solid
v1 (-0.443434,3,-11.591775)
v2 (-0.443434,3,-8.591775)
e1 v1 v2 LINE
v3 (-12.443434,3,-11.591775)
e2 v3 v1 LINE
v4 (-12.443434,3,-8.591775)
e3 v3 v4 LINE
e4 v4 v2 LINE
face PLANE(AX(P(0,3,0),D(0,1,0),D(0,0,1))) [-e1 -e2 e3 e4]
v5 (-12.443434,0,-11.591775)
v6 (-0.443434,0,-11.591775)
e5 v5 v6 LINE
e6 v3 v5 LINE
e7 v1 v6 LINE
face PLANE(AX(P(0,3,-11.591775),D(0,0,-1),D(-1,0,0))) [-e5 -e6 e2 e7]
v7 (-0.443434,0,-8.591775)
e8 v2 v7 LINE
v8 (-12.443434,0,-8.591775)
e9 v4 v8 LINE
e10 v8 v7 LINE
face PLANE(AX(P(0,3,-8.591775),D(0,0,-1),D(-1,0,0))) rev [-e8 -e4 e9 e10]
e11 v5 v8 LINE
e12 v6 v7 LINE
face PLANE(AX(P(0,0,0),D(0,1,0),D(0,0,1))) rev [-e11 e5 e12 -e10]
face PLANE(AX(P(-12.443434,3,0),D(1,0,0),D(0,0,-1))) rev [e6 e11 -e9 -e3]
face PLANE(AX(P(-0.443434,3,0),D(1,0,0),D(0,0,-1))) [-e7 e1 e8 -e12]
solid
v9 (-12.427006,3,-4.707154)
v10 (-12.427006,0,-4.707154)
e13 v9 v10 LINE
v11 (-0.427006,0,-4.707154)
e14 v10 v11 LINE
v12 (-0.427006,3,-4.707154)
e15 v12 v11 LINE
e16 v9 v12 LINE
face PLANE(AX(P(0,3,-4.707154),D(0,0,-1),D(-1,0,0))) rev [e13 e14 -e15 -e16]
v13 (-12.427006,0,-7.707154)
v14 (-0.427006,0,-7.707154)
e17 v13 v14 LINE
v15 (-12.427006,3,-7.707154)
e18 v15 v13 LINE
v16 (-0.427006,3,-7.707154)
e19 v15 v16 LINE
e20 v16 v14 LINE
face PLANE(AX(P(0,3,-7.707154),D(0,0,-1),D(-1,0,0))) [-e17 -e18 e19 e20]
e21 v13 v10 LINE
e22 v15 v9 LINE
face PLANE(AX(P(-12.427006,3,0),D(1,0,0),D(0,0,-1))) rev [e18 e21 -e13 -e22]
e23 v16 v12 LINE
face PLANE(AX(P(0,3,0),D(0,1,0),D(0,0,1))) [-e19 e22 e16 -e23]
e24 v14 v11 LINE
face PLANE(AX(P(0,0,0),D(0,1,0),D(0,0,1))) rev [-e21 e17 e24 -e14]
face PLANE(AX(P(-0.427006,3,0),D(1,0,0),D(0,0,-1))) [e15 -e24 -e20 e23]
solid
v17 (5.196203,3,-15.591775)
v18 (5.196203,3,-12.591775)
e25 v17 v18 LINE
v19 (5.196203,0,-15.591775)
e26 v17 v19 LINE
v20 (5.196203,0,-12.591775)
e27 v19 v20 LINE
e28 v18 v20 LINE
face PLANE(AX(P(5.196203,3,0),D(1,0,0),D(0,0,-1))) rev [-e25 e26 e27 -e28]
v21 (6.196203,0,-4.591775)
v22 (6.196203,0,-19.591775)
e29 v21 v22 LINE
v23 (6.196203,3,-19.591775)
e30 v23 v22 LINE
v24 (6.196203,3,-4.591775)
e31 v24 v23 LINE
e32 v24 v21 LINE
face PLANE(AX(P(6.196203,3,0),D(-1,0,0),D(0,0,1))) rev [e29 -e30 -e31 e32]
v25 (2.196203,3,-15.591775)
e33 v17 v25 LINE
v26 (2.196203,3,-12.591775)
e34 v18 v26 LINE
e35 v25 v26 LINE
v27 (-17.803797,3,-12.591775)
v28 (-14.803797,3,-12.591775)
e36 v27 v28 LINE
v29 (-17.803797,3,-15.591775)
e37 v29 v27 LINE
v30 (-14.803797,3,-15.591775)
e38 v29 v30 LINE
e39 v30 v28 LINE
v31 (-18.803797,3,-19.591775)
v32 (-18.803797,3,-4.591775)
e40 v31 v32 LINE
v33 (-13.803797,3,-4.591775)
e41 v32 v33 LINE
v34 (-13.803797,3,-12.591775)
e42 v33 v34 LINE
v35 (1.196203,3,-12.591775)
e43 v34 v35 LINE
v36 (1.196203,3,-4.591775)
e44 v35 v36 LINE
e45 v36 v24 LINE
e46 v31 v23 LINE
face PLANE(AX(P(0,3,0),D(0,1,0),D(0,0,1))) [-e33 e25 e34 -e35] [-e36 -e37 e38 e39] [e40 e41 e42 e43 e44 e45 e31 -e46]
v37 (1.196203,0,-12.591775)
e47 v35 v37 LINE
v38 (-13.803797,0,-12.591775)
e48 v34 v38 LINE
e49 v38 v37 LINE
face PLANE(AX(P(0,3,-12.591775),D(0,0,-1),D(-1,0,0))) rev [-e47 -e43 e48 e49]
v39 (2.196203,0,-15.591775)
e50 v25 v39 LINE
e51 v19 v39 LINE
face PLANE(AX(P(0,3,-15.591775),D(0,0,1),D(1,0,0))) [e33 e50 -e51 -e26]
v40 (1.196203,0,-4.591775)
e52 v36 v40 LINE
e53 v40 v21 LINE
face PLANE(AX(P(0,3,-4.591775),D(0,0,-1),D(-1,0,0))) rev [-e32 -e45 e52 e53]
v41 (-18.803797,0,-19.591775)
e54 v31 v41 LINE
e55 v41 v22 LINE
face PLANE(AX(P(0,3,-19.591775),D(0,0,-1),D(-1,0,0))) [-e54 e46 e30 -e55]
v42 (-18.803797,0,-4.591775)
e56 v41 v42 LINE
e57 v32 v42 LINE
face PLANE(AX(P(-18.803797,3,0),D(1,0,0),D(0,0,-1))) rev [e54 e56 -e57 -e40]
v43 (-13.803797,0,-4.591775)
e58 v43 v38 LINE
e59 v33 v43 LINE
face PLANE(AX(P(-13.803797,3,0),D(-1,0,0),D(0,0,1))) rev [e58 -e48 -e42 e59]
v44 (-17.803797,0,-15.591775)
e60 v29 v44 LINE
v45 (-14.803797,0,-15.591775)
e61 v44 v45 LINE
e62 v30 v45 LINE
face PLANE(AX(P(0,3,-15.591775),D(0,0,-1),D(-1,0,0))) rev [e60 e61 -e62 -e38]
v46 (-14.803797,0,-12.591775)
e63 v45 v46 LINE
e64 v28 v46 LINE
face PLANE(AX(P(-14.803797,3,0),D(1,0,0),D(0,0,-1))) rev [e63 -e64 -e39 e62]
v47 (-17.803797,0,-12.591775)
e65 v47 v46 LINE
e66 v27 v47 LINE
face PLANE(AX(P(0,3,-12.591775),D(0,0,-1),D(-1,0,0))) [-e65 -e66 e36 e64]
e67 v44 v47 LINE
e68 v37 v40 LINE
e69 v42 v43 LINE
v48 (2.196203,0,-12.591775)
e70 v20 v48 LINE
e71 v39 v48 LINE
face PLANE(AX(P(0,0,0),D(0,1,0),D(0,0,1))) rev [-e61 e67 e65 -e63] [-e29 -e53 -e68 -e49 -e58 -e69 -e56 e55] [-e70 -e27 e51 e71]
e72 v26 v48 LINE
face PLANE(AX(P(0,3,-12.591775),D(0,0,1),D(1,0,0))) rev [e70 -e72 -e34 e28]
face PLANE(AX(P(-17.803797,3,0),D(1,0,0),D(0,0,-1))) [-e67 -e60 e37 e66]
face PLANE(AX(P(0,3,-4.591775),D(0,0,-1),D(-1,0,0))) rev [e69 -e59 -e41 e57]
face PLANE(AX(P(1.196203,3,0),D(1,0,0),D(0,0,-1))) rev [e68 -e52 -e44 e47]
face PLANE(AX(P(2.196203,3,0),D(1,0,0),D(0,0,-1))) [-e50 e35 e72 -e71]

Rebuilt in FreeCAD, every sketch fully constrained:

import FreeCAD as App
import Part
import Sketcher
Q = App.Units.Quantity

doc = App.newDocument("Part")
body = doc.addObject("PartDesign::Body", "Body")

sketch1 = body.newObject("Sketcher::SketchObject", "Sketch")
sketch1.AttachmentSupport = (doc.getObject("XZ_Plane"), [""])
sketch1.MapMode = "FlatFace"
sketch1.addGeometry([
    Part.LineSegment(App.Vector(-18.8, -19.6, 0), App.Vector(-18.8, -4.6, 0)),
    Part.LineSegment(App.Vector(-18.8, -4.6, 0), App.Vector(-13.8, -4.6, 0)),
    Part.LineSegment(App.Vector(-13.8, -4.6, 0), App.Vector(-13.8, -12.6, 0)),
    Part.LineSegment(App.Vector(-13.8, -12.6, 0), App.Vector(1.2, -12.6, 0)),
    Part.LineSegment(App.Vector(1.2, -12.6, 0), App.Vector(1.2, -4.6, 0)),
    Part.LineSegment(App.Vector(1.2, -4.6, 0), App.Vector(6.2, -4.6, 0)),
    Part.LineSegment(App.Vector(6.2, -4.6, 0), App.Vector(6.2, -19.6, 0)),
    Part.LineSegment(App.Vector(6.2, -19.6, 0), App.Vector(-18.8, -19.6, 0)),
    Part.LineSegment(App.Vector(-14.8, -12.6, 0), App.Vector(-17.8, -12.6, 0)),
    Part.LineSegment(App.Vector(-17.8, -12.6, 0), App.Vector(-17.8, -15.6, 0)),
    Part.LineSegment(App.Vector(-17.8, -15.6, 0), App.Vector(-14.8, -15.6, 0)),
    Part.LineSegment(App.Vector(-14.8, -15.6, 0), App.Vector(-14.8, -12.6, 0)),
    Part.LineSegment(App.Vector(5.2, -12.6, 0), App.Vector(2.2, -12.6, 0)),
    Part.LineSegment(App.Vector(2.2, -12.6, 0), App.Vector(2.2, -15.6, 0)),
    Part.LineSegment(App.Vector(2.2, -15.6, 0), App.Vector(5.2, -15.6, 0)),
    Part.LineSegment(App.Vector(5.2, -15.6, 0), App.Vector(5.2, -12.6, 0)),
], False)
sketch1.addConstraint([
    Sketcher.Constraint("Coincident", 0, 2, 1, 1),
    Sketcher.Constraint("Coincident", 1, 2, 2, 1),
    Sketcher.Constraint("Coincident", 2, 2, 3, 1),
    Sketcher.Constraint("Coincident", 3, 2, 4, 1),
    Sketcher.Constraint("Coincident", 4, 2, 5, 1),
    Sketcher.Constraint("Coincident", 5, 2, 6, 1),
    Sketcher.Constraint("Coincident", 6, 2, 7, 1),
    Sketcher.Constraint("Coincident", 7, 2, 0, 1),
    Sketcher.Constraint("Coincident", 8, 2, 9, 1),
    Sketcher.Constraint("Coincident", 9, 2, 10, 1),
    Sketcher.Constraint("Coincident", 10, 2, 11, 1),
    Sketcher.Constraint("Coincident", 11, 2, 8, 1),
    Sketcher.Constraint("Coincident", 12, 2, 13, 1),
    Sketcher.Constraint("Coincident", 13, 2, 14, 1),
    Sketcher.Constraint("Coincident", 14, 2, 15, 1),
    Sketcher.Constraint("Coincident", 15, 2, 12, 1),
    Sketcher.Constraint("Vertical", 0),
    Sketcher.Constraint("Horizontal", 1),
    Sketcher.Constraint("Vertical", 2),
    Sketcher.Constraint("Horizontal", 3),
    Sketcher.Constraint("Vertical", 4),
    Sketcher.Constraint("Horizontal", 5),
    Sketcher.Constraint("Vertical", 6),
    Sketcher.Constraint("Horizontal", 7),
    Sketcher.Constraint("Horizontal", 8),
    Sketcher.Constraint("Vertical", 9),
    Sketcher.Constraint("Horizontal", 10),
    Sketcher.Constraint("Vertical", 11),
    Sketcher.Constraint("Horizontal", 12),
    Sketcher.Constraint("Vertical", 13),
    Sketcher.Constraint("Horizontal", 14),
    Sketcher.Constraint("Vertical", 15),
    Sketcher.Constraint("Horizontal", 1, 2, 4, 2),
    Sketcher.Constraint("Horizontal", 3, 2, 8, 2),
    Sketcher.Constraint("Horizontal", 11, 2, 12, 2),
    Sketcher.Constraint("Horizontal", 10, 2, 13, 2),
    Sketcher.Constraint("Equal", 1, 5),
    Sketcher.Constraint("Equal", 10, 12),
    Sketcher.Constraint("Equal", 3, 0),
    Sketcher.Constraint("Equal", 14, 9),
    Sketcher.Constraint("DistanceX", 1, 1, 1, 2, Q("5 mm")),
    Sketcher.Constraint("DistanceX", 3, 1, 3, 2, Q("15 mm")),
    Sketcher.Constraint("DistanceX", 8, 2, 8, 1, Q("3 mm")),
    Sketcher.Constraint("DistanceY", 2, 2, 2, 1, Q("8 mm")),
    Sketcher.Constraint("DistanceX", 8, 2, 2, 2, Q("4 mm")),
    Sketcher.Constraint("DistanceX", 3, 2, 12, 2, Q("1 mm")),
    Sketcher.Constraint("DistanceX", 0, 2, -1, 1, Q("18.803797 mm")),
    Sketcher.Constraint("DistanceY", 0, 2, -1, 1, Q("4.591775 mm")),
])
pad1 = body.newObject("PartDesign::Pad", "Pad")
pad1.Profile = sketch1
pad1.Length = 3
pad1.Reversed = True
body2 = doc.addObject("PartDesign::Body", "Body001")

sketch2 = body2.newObject("Sketcher::SketchObject", "Sketch001")
sketch2.AttachmentSupport = (doc.getObject("XZ_Plane001"), [""])
sketch2.MapMode = "FlatFace"
sketch2.addGeometry([
    Part.LineSegment(App.Vector(-12.4, -7.7, 0), App.Vector(-12.4, -4.7, 0)),
    Part.LineSegment(App.Vector(-12.4, -4.7, 0), App.Vector(-0.4, -4.7, 0)),
    Part.LineSegment(App.Vector(-0.4, -4.7, 0), App.Vector(-0.4, -7.7, 0)),
    Part.LineSegment(App.Vector(-0.4, -7.7, 0), App.Vector(-12.4, -7.7, 0)),
], False)
sketch2.addConstraint([
    Sketcher.Constraint("Coincident", 0, 2, 1, 1),
    Sketcher.Constraint("Coincident", 1, 2, 2, 1),
    Sketcher.Constraint("Coincident", 2, 2, 3, 1),
    Sketcher.Constraint("Coincident", 3, 2, 0, 1),
    Sketcher.Constraint("Vertical", 0),
    Sketcher.Constraint("Horizontal", 1),
    Sketcher.Constraint("Vertical", 2),
    Sketcher.Constraint("Horizontal", 3),
    Sketcher.Constraint("DistanceX", 1, 1, 1, 2, Q("12 mm")),
    Sketcher.Constraint("DistanceY", 0, 1, 0, 2, Q("3 mm")),
    Sketcher.Constraint("DistanceX", 0, 2, -1, 1, Q("12.427006 mm")),
    Sketcher.Constraint("DistanceY", 0, 2, -1, 1, Q("4.707154 mm")),
])
pad2 = body2.newObject("PartDesign::Pad", "Pad001")
pad2.Profile = sketch2
pad2.Length = 3
pad2.Reversed = True
body3 = doc.addObject("PartDesign::Body", "Body002")

sketch3 = body3.newObject("Sketcher::SketchObject", "Sketch002")
sketch3.AttachmentSupport = (doc.getObject("XZ_Plane002"), [""])
sketch3.MapMode = "FlatFace"
sketch3.addGeometry([
    Part.LineSegment(App.Vector(-12.4, -11.6, 0), App.Vector(-12.4, -8.6, 0)),
    Part.LineSegment(App.Vector(-12.4, -8.6, 0), App.Vector(-0.4, -8.6, 0)),
    Part.LineSegment(App.Vector(-0.4, -8.6, 0), App.Vector(-0.4, -11.6, 0)),
    Part.LineSegment(App.Vector(-0.4, -11.6, 0), App.Vector(-12.4, -11.6, 0)),
], False)
sketch3.addConstraint([
    Sketcher.Constraint("Coincident", 0, 2, 1, 1),
    Sketcher.Constraint("Coincident", 1, 2, 2, 1),
    Sketcher.Constraint("Coincident", 2, 2, 3, 1),
    Sketcher.Constraint("Coincident", 3, 2, 0, 1),
    Sketcher.Constraint("Vertical", 0),
    Sketcher.Constraint("Horizontal", 1),
    Sketcher.Constraint("Vertical", 2),
    Sketcher.Constraint("Horizontal", 3),
    Sketcher.Constraint("DistanceX", 1, 1, 1, 2, Q("12 mm")),
    Sketcher.Constraint("DistanceY", 0, 1, 0, 2, Q("3 mm")),
    Sketcher.Constraint("DistanceX", 0, 2, -1, 1, Q("12.443434 mm")),
    Sketcher.Constraint("DistanceY", 0, 2, -1, 1, Q("8.591775 mm")),
])
pad3 = body3.newObject("PartDesign::Pad", "Pad002")
pad3.Profile = sketch3
pad3.Length = 3
pad3.Reversed = True

doc.recompute()
